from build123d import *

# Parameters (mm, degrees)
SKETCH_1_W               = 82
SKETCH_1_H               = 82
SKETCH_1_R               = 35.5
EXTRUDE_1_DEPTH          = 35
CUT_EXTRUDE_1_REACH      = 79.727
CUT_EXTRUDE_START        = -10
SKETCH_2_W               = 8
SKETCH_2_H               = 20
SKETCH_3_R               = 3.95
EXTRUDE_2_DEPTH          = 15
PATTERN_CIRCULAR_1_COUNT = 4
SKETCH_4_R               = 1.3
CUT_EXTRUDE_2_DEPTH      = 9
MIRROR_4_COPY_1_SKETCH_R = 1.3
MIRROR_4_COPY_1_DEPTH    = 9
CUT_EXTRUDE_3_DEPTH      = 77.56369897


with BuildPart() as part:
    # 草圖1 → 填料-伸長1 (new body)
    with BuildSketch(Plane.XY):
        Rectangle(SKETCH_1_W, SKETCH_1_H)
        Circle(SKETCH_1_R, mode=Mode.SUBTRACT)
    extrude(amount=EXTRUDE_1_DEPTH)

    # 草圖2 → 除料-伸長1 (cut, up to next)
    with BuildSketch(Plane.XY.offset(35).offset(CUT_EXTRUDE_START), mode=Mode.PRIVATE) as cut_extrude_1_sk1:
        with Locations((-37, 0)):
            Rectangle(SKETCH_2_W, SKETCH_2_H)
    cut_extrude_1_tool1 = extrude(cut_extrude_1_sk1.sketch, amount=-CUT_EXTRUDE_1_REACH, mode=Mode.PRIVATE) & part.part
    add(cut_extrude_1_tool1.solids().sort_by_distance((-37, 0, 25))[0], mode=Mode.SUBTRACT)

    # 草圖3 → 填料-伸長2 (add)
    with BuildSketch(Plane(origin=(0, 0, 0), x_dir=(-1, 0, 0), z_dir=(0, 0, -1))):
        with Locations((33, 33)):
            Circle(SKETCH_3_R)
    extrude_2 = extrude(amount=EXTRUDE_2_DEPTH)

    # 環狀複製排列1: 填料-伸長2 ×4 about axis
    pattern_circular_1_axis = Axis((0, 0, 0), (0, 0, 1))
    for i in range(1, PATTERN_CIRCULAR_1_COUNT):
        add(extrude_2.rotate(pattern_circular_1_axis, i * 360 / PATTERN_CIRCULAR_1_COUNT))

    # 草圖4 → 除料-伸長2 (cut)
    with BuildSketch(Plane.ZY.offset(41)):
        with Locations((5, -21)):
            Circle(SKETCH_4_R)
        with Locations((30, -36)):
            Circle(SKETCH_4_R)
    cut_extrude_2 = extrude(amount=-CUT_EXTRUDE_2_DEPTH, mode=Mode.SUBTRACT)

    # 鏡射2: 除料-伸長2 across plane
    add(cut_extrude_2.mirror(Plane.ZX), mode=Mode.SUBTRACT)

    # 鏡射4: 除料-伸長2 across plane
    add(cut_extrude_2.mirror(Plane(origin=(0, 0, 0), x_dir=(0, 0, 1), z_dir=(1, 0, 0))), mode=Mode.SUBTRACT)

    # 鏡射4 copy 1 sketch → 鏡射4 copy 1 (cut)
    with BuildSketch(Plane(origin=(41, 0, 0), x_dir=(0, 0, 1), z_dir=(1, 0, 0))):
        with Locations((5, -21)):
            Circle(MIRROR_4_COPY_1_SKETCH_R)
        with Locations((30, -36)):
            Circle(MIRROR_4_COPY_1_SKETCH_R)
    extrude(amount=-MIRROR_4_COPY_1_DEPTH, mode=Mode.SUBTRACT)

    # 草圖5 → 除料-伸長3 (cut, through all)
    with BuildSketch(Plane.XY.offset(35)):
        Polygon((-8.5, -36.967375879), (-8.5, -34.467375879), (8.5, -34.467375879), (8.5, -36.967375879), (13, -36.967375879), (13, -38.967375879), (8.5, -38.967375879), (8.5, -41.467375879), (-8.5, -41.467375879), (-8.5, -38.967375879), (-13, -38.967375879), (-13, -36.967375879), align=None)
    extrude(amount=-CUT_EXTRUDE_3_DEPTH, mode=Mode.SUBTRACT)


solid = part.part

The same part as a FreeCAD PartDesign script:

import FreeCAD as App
import Part
import Sketcher

V = App.Vector


def add_polygon(sketch, points):
    """Adds a closed chain of lines whose ends are joined by coincident constraints."""
    first, n = sketch.GeometryCount, len(points)
    for a, b in zip(points, points[1:] + points[:1]):
        sketch.addGeometry(Part.LineSegment(App.Vector(*a, 0), App.Vector(*b, 0)), False)
    for i in range(n):
        sketch.addConstraint(Sketcher.Constraint("Coincident", first + i, 2, first + (i + 1) % n, 1))

doc = App.newDocument("Part")
body = doc.addObject("PartDesign::Body", "Body")

# Sketch on XY plane
sketch1 = body.newObject("Sketcher::SketchObject", "Sketch")
sketch1.AttachmentSupport = (doc.getObject("XY_Plane"), [""])
sketch1.MapMode = "FlatFace"
add_polygon(sketch1, [(-41, 41), (-41, -41), (41, -41), (41, 41)])  # lines 0-3
sketch1.addGeometry(Part.Circle(V(0, 0, 0), V(0, 0, 1), 35.5), False)  # 4
sketch1.addConstraint(Sketcher.Constraint("Vertical", 0))
sketch1.addConstraint(Sketcher.Constraint("Horizontal", 1))
sketch1.addConstraint(Sketcher.Constraint("Vertical", 2))
sketch1.addConstraint(Sketcher.Constraint("Horizontal", 3))
sketch1.addConstraint(Sketcher.Constraint("Coincident", 4, 3, -1, 1))
sketch1.addConstraint(Sketcher.Constraint("Symmetric", 0, 2, 2, 2, -1, 1))
sketch1.addConstraint(Sketcher.Constraint("Equal", 3, 0))
sketch1.addConstraint(Sketcher.Constraint("Diameter", 4, 71.0))
sketch1.addConstraint(Sketcher.Constraint("DistanceX", 1, 1, 1, 2, 82.0))
pad1 = body.newObject("PartDesign::Pad", "Pad")
pad1.Profile = sketch1
pad1.Length = 35

# Sketch on XY plane
sketch2 = body.newObject("Sketcher::SketchObject", "Sketch001")
sketch2.AttachmentSupport = (doc.getObject("XY_Plane"), [""])
sketch2.MapMode = "FlatFace"
sketch2.AttachmentOffset = App.Placement(V(0, 0, 25), App.Rotation())
add_polygon(sketch2, [(-41, 10), (-41, -10), (-33, -10), (-33, 10)])  # lines 0-3
sketch2.addConstraint(Sketcher.Constraint("Vertical", 0))
sketch2.addConstraint(Sketcher.Constraint("Horizontal", 1))
sketch2.addConstraint(Sketcher.Constraint("Vertical", 2))
sketch2.addConstraint(Sketcher.Constraint("Horizontal", 3))
sketch2.addConstraint(Sketcher.Constraint("DistanceX", 1, 1, 1, 2, 8.0))
sketch2.addConstraint(Sketcher.Constraint("DistanceY", 0, 2, 0, 1, 20.0))
sketch2.addConstraint(Sketcher.Constraint("DistanceX", 0, 2, -1, 1, 41.0))
sketch2.addConstraint(Sketcher.Constraint("DistanceY", 0, 2, -1, 1, 10.0))
pocket1 = body.newObject("PartDesign::Pocket", "Pocket")
pocket1.Profile = sketch2
pocket1.Type = "UpToFirst"

# Sketch on XY plane
sketch3 = body.newObject("Sketcher::SketchObject", "Sketch002")
sketch3.AttachmentSupport = (doc.getObject("XY_Plane"), [""])
sketch3.MapMode = "FlatFace"
sketch3.addGeometry(Part.Circle(V(-33, 33, 0), V(0, 0, 1), 3.95), False)
sketch3.addConstraint(Sketcher.Constraint("Diameter", 0, 7.9))
sketch3.addConstraint(Sketcher.Constraint("DistanceX", 0, 3, -1, 1, 33.0))
sketch3.addConstraint(Sketcher.Constraint("DistanceY", -1, 1, 0, 3, 33.0))
pad2 = body.newObject("PartDesign::Pad", "Pad001")
pad2.Profile = sketch3
pad2.Length = 15
pad2.Reversed = True
doc.recompute()

polarpattern = body.newObject("PartDesign::PolarPattern", "PolarPattern")
polarpattern.Originals = [pad2]
polarpattern.Axis = (doc.getObject("Z_Axis"), [""])
polarpattern.Angle = 360
polarpattern.Occurrences = 4
body.Tip = polarpattern

# Sketch on YZ plane
sketch4 = body.newObject("Sketcher::SketchObject", "Sketch003")
sketch4.AttachmentSupport = (doc.getObject("YZ_Plane"), [""])
sketch4.MapMode = "FlatFace"
sketch4.AttachmentOffset = App.Placement(V(0, 0, -41), App.Rotation())
sketch4.addGeometry(Part.Circle(V(-21, 5, 0), V(0, 0, 1), 1.3), False)
sketch4.addGeometry(Part.Circle(V(-36, 30, 0), V(0, 0, 1), 1.3), False)
sketch4.addConstraint(Sketcher.Constraint("Equal", 0, 1))
sketch4.addConstraint(Sketcher.Constraint("Diameter", 0, 2.6))
sketch4.addConstraint(Sketcher.Constraint("DistanceX", 0, 3, -1, 1, 21.0))
sketch4.addConstraint(Sketcher.Constraint("DistanceY", -1, 1, 0, 3, 5.0))
sketch4.addConstraint(Sketcher.Constraint("DistanceX", 1, 3, -1, 1, 36.0))
sketch4.addConstraint(Sketcher.Constraint("DistanceY", -1, 1, 1, 3, 30.0))
pocket2 = body.newObject("PartDesign::Pocket", "Pocket001")
pocket2.Profile = sketch4
pocket2.Length = 9
pocket2.Reversed = True
doc.recompute()

mirrored = body.newObject("PartDesign::Mirrored", "Mirrored")
mirrored.Originals = [pocket2]
mirrored.MirrorPlane = (doc.getObject("XZ_Plane"), [""])
body.Tip = mirrored
doc.recompute()

mirrored2 = body.newObject("PartDesign::Mirrored", "Mirrored001")
mirrored2.Originals = [pocket2]
mirrored2.MirrorPlane = (doc.getObject("YZ_Plane"), [""])
body.Tip = mirrored2

# Sketch on YZ plane
sketch5 = body.newObject("Sketcher::SketchObject", "Sketch004")
sketch5.AttachmentSupport = (doc.getObject("YZ_Plane"), [""])
sketch5.MapMode = "FlatFace"
sketch5.AttachmentOffset = App.Placement(V(0, 0, 41), App.Rotation())
sketch5.addGeometry(Part.Circle(V(21, 5, 0), V(0, 0, 1), 1.3), False)
sketch5.addGeometry(Part.Circle(V(36, 30, 0), V(0, 0, 1), 1.3), False)
sketch5.addConstraint(Sketcher.Constraint("Equal", 0, 1))
sketch5.addConstraint(Sketcher.Constraint("Diameter", 0, 2.6))
sketch5.addConstraint(Sketcher.Constraint("DistanceX", -1, 1, 0, 3, 21.0))
sketch5.addConstraint(Sketcher.Constraint("DistanceY", -1, 1, 0, 3, 5.0))
sketch5.addConstraint(Sketcher.Constraint("DistanceX", -1, 1, 1, 3, 36.0))
sketch5.addConstraint(Sketcher.Constraint("DistanceY", -1, 1, 1, 3, 30.0))
pocket3 = body.newObject("PartDesign::Pocket", "Pocket002")
pocket3.Profile = sketch5
pocket3.Length = 9

# Sketch on XY plane
sketch6 = body.newObject("Sketcher::SketchObject", "Sketch005")
sketch6.AttachmentSupport = (doc.getObject("XY_Plane"), [""])
sketch6.MapMode = "FlatFace"
sketch6.AttachmentOffset = App.Placement(V(0, 0, 35), App.Rotation())
add_polygon(sketch6, [(-8.5, -34.467376), (-8.5, -36.967376), (-13, -36.967376), (-13, -38.967376), (-8.5, -38.967376), (-8.5, -41.467376), (8.5, -41.467376), (8.5, -38.967376), (13, -38.967376), (13, -36.967376), (8.5, -36.967376), (8.5, -34.467376)])  # lines 0-11
sketch6.addConstraint(Sketcher.Constraint("Vertical", 0))
sketch6.addConstraint(Sketcher.Constraint("Horizontal", 1))
sketch6.addConstraint(Sketcher.Constraint("Vertical", 2))
sketch6.addConstraint(Sketcher.Constraint("Horizontal", 3))
sketch6.addConstraint(Sketcher.Constraint("Vertical", 4))
sketch6.addConstraint(Sketcher.Constraint("Horizontal", 5))
sketch6.addConstraint(Sketcher.Constraint("Vertical", 6))
sketch6.addConstraint(Sketcher.Constraint("Horizontal", 7))
sketch6.addConstraint(Sketcher.Constraint("Vertical", 8))
sketch6.addConstraint(Sketcher.Constraint("Horizontal", 9))
sketch6.addConstraint(Sketcher.Constraint("Vertical", 10))
sketch6.addConstraint(Sketcher.Constraint("Horizontal", 11))
sketch6.addConstraint(Sketcher.Constraint("Symmetric", 3, 2, 6, 2, -2))
sketch6.addConstraint(Sketcher.Constraint("Symmetric", 1, 2, 8, 2, -2))
sketch6.addConstraint(Sketcher.Constraint("Vertical", 0, 2, 3, 2))
sketch6.addConstraint(Sketcher.Constraint("Vertical", 6, 2, 9, 2))
sketch6.addConstraint(Sketcher.Constraint("Equal", 0, 4))
sketch6.addConstraint(Sketcher.Constraint("DistanceX", 5, 1, 5, 2, 17.0))
sketch6.addConstraint(Sketcher.Constraint("DistanceY", 2, 2, 2, 1, 2.0))
sketch6.addConstraint(Sketcher.Constraint("DistanceX", 1, 2, 1, 1, 4.5))
sketch6.addConstraint(Sketcher.Constraint("DistanceY", 0, 2, 0, 1, 2.5))
sketch6.addConstraint(Sketcher.Constraint("DistanceY", 0, 2, -1, 1, 36.967376))
pocket4 = body.newObject("PartDesign::Pocket", "Pocket003")
pocket4.Profile = sketch6
pocket4.Type = "ThroughAll"

doc.recompute()
